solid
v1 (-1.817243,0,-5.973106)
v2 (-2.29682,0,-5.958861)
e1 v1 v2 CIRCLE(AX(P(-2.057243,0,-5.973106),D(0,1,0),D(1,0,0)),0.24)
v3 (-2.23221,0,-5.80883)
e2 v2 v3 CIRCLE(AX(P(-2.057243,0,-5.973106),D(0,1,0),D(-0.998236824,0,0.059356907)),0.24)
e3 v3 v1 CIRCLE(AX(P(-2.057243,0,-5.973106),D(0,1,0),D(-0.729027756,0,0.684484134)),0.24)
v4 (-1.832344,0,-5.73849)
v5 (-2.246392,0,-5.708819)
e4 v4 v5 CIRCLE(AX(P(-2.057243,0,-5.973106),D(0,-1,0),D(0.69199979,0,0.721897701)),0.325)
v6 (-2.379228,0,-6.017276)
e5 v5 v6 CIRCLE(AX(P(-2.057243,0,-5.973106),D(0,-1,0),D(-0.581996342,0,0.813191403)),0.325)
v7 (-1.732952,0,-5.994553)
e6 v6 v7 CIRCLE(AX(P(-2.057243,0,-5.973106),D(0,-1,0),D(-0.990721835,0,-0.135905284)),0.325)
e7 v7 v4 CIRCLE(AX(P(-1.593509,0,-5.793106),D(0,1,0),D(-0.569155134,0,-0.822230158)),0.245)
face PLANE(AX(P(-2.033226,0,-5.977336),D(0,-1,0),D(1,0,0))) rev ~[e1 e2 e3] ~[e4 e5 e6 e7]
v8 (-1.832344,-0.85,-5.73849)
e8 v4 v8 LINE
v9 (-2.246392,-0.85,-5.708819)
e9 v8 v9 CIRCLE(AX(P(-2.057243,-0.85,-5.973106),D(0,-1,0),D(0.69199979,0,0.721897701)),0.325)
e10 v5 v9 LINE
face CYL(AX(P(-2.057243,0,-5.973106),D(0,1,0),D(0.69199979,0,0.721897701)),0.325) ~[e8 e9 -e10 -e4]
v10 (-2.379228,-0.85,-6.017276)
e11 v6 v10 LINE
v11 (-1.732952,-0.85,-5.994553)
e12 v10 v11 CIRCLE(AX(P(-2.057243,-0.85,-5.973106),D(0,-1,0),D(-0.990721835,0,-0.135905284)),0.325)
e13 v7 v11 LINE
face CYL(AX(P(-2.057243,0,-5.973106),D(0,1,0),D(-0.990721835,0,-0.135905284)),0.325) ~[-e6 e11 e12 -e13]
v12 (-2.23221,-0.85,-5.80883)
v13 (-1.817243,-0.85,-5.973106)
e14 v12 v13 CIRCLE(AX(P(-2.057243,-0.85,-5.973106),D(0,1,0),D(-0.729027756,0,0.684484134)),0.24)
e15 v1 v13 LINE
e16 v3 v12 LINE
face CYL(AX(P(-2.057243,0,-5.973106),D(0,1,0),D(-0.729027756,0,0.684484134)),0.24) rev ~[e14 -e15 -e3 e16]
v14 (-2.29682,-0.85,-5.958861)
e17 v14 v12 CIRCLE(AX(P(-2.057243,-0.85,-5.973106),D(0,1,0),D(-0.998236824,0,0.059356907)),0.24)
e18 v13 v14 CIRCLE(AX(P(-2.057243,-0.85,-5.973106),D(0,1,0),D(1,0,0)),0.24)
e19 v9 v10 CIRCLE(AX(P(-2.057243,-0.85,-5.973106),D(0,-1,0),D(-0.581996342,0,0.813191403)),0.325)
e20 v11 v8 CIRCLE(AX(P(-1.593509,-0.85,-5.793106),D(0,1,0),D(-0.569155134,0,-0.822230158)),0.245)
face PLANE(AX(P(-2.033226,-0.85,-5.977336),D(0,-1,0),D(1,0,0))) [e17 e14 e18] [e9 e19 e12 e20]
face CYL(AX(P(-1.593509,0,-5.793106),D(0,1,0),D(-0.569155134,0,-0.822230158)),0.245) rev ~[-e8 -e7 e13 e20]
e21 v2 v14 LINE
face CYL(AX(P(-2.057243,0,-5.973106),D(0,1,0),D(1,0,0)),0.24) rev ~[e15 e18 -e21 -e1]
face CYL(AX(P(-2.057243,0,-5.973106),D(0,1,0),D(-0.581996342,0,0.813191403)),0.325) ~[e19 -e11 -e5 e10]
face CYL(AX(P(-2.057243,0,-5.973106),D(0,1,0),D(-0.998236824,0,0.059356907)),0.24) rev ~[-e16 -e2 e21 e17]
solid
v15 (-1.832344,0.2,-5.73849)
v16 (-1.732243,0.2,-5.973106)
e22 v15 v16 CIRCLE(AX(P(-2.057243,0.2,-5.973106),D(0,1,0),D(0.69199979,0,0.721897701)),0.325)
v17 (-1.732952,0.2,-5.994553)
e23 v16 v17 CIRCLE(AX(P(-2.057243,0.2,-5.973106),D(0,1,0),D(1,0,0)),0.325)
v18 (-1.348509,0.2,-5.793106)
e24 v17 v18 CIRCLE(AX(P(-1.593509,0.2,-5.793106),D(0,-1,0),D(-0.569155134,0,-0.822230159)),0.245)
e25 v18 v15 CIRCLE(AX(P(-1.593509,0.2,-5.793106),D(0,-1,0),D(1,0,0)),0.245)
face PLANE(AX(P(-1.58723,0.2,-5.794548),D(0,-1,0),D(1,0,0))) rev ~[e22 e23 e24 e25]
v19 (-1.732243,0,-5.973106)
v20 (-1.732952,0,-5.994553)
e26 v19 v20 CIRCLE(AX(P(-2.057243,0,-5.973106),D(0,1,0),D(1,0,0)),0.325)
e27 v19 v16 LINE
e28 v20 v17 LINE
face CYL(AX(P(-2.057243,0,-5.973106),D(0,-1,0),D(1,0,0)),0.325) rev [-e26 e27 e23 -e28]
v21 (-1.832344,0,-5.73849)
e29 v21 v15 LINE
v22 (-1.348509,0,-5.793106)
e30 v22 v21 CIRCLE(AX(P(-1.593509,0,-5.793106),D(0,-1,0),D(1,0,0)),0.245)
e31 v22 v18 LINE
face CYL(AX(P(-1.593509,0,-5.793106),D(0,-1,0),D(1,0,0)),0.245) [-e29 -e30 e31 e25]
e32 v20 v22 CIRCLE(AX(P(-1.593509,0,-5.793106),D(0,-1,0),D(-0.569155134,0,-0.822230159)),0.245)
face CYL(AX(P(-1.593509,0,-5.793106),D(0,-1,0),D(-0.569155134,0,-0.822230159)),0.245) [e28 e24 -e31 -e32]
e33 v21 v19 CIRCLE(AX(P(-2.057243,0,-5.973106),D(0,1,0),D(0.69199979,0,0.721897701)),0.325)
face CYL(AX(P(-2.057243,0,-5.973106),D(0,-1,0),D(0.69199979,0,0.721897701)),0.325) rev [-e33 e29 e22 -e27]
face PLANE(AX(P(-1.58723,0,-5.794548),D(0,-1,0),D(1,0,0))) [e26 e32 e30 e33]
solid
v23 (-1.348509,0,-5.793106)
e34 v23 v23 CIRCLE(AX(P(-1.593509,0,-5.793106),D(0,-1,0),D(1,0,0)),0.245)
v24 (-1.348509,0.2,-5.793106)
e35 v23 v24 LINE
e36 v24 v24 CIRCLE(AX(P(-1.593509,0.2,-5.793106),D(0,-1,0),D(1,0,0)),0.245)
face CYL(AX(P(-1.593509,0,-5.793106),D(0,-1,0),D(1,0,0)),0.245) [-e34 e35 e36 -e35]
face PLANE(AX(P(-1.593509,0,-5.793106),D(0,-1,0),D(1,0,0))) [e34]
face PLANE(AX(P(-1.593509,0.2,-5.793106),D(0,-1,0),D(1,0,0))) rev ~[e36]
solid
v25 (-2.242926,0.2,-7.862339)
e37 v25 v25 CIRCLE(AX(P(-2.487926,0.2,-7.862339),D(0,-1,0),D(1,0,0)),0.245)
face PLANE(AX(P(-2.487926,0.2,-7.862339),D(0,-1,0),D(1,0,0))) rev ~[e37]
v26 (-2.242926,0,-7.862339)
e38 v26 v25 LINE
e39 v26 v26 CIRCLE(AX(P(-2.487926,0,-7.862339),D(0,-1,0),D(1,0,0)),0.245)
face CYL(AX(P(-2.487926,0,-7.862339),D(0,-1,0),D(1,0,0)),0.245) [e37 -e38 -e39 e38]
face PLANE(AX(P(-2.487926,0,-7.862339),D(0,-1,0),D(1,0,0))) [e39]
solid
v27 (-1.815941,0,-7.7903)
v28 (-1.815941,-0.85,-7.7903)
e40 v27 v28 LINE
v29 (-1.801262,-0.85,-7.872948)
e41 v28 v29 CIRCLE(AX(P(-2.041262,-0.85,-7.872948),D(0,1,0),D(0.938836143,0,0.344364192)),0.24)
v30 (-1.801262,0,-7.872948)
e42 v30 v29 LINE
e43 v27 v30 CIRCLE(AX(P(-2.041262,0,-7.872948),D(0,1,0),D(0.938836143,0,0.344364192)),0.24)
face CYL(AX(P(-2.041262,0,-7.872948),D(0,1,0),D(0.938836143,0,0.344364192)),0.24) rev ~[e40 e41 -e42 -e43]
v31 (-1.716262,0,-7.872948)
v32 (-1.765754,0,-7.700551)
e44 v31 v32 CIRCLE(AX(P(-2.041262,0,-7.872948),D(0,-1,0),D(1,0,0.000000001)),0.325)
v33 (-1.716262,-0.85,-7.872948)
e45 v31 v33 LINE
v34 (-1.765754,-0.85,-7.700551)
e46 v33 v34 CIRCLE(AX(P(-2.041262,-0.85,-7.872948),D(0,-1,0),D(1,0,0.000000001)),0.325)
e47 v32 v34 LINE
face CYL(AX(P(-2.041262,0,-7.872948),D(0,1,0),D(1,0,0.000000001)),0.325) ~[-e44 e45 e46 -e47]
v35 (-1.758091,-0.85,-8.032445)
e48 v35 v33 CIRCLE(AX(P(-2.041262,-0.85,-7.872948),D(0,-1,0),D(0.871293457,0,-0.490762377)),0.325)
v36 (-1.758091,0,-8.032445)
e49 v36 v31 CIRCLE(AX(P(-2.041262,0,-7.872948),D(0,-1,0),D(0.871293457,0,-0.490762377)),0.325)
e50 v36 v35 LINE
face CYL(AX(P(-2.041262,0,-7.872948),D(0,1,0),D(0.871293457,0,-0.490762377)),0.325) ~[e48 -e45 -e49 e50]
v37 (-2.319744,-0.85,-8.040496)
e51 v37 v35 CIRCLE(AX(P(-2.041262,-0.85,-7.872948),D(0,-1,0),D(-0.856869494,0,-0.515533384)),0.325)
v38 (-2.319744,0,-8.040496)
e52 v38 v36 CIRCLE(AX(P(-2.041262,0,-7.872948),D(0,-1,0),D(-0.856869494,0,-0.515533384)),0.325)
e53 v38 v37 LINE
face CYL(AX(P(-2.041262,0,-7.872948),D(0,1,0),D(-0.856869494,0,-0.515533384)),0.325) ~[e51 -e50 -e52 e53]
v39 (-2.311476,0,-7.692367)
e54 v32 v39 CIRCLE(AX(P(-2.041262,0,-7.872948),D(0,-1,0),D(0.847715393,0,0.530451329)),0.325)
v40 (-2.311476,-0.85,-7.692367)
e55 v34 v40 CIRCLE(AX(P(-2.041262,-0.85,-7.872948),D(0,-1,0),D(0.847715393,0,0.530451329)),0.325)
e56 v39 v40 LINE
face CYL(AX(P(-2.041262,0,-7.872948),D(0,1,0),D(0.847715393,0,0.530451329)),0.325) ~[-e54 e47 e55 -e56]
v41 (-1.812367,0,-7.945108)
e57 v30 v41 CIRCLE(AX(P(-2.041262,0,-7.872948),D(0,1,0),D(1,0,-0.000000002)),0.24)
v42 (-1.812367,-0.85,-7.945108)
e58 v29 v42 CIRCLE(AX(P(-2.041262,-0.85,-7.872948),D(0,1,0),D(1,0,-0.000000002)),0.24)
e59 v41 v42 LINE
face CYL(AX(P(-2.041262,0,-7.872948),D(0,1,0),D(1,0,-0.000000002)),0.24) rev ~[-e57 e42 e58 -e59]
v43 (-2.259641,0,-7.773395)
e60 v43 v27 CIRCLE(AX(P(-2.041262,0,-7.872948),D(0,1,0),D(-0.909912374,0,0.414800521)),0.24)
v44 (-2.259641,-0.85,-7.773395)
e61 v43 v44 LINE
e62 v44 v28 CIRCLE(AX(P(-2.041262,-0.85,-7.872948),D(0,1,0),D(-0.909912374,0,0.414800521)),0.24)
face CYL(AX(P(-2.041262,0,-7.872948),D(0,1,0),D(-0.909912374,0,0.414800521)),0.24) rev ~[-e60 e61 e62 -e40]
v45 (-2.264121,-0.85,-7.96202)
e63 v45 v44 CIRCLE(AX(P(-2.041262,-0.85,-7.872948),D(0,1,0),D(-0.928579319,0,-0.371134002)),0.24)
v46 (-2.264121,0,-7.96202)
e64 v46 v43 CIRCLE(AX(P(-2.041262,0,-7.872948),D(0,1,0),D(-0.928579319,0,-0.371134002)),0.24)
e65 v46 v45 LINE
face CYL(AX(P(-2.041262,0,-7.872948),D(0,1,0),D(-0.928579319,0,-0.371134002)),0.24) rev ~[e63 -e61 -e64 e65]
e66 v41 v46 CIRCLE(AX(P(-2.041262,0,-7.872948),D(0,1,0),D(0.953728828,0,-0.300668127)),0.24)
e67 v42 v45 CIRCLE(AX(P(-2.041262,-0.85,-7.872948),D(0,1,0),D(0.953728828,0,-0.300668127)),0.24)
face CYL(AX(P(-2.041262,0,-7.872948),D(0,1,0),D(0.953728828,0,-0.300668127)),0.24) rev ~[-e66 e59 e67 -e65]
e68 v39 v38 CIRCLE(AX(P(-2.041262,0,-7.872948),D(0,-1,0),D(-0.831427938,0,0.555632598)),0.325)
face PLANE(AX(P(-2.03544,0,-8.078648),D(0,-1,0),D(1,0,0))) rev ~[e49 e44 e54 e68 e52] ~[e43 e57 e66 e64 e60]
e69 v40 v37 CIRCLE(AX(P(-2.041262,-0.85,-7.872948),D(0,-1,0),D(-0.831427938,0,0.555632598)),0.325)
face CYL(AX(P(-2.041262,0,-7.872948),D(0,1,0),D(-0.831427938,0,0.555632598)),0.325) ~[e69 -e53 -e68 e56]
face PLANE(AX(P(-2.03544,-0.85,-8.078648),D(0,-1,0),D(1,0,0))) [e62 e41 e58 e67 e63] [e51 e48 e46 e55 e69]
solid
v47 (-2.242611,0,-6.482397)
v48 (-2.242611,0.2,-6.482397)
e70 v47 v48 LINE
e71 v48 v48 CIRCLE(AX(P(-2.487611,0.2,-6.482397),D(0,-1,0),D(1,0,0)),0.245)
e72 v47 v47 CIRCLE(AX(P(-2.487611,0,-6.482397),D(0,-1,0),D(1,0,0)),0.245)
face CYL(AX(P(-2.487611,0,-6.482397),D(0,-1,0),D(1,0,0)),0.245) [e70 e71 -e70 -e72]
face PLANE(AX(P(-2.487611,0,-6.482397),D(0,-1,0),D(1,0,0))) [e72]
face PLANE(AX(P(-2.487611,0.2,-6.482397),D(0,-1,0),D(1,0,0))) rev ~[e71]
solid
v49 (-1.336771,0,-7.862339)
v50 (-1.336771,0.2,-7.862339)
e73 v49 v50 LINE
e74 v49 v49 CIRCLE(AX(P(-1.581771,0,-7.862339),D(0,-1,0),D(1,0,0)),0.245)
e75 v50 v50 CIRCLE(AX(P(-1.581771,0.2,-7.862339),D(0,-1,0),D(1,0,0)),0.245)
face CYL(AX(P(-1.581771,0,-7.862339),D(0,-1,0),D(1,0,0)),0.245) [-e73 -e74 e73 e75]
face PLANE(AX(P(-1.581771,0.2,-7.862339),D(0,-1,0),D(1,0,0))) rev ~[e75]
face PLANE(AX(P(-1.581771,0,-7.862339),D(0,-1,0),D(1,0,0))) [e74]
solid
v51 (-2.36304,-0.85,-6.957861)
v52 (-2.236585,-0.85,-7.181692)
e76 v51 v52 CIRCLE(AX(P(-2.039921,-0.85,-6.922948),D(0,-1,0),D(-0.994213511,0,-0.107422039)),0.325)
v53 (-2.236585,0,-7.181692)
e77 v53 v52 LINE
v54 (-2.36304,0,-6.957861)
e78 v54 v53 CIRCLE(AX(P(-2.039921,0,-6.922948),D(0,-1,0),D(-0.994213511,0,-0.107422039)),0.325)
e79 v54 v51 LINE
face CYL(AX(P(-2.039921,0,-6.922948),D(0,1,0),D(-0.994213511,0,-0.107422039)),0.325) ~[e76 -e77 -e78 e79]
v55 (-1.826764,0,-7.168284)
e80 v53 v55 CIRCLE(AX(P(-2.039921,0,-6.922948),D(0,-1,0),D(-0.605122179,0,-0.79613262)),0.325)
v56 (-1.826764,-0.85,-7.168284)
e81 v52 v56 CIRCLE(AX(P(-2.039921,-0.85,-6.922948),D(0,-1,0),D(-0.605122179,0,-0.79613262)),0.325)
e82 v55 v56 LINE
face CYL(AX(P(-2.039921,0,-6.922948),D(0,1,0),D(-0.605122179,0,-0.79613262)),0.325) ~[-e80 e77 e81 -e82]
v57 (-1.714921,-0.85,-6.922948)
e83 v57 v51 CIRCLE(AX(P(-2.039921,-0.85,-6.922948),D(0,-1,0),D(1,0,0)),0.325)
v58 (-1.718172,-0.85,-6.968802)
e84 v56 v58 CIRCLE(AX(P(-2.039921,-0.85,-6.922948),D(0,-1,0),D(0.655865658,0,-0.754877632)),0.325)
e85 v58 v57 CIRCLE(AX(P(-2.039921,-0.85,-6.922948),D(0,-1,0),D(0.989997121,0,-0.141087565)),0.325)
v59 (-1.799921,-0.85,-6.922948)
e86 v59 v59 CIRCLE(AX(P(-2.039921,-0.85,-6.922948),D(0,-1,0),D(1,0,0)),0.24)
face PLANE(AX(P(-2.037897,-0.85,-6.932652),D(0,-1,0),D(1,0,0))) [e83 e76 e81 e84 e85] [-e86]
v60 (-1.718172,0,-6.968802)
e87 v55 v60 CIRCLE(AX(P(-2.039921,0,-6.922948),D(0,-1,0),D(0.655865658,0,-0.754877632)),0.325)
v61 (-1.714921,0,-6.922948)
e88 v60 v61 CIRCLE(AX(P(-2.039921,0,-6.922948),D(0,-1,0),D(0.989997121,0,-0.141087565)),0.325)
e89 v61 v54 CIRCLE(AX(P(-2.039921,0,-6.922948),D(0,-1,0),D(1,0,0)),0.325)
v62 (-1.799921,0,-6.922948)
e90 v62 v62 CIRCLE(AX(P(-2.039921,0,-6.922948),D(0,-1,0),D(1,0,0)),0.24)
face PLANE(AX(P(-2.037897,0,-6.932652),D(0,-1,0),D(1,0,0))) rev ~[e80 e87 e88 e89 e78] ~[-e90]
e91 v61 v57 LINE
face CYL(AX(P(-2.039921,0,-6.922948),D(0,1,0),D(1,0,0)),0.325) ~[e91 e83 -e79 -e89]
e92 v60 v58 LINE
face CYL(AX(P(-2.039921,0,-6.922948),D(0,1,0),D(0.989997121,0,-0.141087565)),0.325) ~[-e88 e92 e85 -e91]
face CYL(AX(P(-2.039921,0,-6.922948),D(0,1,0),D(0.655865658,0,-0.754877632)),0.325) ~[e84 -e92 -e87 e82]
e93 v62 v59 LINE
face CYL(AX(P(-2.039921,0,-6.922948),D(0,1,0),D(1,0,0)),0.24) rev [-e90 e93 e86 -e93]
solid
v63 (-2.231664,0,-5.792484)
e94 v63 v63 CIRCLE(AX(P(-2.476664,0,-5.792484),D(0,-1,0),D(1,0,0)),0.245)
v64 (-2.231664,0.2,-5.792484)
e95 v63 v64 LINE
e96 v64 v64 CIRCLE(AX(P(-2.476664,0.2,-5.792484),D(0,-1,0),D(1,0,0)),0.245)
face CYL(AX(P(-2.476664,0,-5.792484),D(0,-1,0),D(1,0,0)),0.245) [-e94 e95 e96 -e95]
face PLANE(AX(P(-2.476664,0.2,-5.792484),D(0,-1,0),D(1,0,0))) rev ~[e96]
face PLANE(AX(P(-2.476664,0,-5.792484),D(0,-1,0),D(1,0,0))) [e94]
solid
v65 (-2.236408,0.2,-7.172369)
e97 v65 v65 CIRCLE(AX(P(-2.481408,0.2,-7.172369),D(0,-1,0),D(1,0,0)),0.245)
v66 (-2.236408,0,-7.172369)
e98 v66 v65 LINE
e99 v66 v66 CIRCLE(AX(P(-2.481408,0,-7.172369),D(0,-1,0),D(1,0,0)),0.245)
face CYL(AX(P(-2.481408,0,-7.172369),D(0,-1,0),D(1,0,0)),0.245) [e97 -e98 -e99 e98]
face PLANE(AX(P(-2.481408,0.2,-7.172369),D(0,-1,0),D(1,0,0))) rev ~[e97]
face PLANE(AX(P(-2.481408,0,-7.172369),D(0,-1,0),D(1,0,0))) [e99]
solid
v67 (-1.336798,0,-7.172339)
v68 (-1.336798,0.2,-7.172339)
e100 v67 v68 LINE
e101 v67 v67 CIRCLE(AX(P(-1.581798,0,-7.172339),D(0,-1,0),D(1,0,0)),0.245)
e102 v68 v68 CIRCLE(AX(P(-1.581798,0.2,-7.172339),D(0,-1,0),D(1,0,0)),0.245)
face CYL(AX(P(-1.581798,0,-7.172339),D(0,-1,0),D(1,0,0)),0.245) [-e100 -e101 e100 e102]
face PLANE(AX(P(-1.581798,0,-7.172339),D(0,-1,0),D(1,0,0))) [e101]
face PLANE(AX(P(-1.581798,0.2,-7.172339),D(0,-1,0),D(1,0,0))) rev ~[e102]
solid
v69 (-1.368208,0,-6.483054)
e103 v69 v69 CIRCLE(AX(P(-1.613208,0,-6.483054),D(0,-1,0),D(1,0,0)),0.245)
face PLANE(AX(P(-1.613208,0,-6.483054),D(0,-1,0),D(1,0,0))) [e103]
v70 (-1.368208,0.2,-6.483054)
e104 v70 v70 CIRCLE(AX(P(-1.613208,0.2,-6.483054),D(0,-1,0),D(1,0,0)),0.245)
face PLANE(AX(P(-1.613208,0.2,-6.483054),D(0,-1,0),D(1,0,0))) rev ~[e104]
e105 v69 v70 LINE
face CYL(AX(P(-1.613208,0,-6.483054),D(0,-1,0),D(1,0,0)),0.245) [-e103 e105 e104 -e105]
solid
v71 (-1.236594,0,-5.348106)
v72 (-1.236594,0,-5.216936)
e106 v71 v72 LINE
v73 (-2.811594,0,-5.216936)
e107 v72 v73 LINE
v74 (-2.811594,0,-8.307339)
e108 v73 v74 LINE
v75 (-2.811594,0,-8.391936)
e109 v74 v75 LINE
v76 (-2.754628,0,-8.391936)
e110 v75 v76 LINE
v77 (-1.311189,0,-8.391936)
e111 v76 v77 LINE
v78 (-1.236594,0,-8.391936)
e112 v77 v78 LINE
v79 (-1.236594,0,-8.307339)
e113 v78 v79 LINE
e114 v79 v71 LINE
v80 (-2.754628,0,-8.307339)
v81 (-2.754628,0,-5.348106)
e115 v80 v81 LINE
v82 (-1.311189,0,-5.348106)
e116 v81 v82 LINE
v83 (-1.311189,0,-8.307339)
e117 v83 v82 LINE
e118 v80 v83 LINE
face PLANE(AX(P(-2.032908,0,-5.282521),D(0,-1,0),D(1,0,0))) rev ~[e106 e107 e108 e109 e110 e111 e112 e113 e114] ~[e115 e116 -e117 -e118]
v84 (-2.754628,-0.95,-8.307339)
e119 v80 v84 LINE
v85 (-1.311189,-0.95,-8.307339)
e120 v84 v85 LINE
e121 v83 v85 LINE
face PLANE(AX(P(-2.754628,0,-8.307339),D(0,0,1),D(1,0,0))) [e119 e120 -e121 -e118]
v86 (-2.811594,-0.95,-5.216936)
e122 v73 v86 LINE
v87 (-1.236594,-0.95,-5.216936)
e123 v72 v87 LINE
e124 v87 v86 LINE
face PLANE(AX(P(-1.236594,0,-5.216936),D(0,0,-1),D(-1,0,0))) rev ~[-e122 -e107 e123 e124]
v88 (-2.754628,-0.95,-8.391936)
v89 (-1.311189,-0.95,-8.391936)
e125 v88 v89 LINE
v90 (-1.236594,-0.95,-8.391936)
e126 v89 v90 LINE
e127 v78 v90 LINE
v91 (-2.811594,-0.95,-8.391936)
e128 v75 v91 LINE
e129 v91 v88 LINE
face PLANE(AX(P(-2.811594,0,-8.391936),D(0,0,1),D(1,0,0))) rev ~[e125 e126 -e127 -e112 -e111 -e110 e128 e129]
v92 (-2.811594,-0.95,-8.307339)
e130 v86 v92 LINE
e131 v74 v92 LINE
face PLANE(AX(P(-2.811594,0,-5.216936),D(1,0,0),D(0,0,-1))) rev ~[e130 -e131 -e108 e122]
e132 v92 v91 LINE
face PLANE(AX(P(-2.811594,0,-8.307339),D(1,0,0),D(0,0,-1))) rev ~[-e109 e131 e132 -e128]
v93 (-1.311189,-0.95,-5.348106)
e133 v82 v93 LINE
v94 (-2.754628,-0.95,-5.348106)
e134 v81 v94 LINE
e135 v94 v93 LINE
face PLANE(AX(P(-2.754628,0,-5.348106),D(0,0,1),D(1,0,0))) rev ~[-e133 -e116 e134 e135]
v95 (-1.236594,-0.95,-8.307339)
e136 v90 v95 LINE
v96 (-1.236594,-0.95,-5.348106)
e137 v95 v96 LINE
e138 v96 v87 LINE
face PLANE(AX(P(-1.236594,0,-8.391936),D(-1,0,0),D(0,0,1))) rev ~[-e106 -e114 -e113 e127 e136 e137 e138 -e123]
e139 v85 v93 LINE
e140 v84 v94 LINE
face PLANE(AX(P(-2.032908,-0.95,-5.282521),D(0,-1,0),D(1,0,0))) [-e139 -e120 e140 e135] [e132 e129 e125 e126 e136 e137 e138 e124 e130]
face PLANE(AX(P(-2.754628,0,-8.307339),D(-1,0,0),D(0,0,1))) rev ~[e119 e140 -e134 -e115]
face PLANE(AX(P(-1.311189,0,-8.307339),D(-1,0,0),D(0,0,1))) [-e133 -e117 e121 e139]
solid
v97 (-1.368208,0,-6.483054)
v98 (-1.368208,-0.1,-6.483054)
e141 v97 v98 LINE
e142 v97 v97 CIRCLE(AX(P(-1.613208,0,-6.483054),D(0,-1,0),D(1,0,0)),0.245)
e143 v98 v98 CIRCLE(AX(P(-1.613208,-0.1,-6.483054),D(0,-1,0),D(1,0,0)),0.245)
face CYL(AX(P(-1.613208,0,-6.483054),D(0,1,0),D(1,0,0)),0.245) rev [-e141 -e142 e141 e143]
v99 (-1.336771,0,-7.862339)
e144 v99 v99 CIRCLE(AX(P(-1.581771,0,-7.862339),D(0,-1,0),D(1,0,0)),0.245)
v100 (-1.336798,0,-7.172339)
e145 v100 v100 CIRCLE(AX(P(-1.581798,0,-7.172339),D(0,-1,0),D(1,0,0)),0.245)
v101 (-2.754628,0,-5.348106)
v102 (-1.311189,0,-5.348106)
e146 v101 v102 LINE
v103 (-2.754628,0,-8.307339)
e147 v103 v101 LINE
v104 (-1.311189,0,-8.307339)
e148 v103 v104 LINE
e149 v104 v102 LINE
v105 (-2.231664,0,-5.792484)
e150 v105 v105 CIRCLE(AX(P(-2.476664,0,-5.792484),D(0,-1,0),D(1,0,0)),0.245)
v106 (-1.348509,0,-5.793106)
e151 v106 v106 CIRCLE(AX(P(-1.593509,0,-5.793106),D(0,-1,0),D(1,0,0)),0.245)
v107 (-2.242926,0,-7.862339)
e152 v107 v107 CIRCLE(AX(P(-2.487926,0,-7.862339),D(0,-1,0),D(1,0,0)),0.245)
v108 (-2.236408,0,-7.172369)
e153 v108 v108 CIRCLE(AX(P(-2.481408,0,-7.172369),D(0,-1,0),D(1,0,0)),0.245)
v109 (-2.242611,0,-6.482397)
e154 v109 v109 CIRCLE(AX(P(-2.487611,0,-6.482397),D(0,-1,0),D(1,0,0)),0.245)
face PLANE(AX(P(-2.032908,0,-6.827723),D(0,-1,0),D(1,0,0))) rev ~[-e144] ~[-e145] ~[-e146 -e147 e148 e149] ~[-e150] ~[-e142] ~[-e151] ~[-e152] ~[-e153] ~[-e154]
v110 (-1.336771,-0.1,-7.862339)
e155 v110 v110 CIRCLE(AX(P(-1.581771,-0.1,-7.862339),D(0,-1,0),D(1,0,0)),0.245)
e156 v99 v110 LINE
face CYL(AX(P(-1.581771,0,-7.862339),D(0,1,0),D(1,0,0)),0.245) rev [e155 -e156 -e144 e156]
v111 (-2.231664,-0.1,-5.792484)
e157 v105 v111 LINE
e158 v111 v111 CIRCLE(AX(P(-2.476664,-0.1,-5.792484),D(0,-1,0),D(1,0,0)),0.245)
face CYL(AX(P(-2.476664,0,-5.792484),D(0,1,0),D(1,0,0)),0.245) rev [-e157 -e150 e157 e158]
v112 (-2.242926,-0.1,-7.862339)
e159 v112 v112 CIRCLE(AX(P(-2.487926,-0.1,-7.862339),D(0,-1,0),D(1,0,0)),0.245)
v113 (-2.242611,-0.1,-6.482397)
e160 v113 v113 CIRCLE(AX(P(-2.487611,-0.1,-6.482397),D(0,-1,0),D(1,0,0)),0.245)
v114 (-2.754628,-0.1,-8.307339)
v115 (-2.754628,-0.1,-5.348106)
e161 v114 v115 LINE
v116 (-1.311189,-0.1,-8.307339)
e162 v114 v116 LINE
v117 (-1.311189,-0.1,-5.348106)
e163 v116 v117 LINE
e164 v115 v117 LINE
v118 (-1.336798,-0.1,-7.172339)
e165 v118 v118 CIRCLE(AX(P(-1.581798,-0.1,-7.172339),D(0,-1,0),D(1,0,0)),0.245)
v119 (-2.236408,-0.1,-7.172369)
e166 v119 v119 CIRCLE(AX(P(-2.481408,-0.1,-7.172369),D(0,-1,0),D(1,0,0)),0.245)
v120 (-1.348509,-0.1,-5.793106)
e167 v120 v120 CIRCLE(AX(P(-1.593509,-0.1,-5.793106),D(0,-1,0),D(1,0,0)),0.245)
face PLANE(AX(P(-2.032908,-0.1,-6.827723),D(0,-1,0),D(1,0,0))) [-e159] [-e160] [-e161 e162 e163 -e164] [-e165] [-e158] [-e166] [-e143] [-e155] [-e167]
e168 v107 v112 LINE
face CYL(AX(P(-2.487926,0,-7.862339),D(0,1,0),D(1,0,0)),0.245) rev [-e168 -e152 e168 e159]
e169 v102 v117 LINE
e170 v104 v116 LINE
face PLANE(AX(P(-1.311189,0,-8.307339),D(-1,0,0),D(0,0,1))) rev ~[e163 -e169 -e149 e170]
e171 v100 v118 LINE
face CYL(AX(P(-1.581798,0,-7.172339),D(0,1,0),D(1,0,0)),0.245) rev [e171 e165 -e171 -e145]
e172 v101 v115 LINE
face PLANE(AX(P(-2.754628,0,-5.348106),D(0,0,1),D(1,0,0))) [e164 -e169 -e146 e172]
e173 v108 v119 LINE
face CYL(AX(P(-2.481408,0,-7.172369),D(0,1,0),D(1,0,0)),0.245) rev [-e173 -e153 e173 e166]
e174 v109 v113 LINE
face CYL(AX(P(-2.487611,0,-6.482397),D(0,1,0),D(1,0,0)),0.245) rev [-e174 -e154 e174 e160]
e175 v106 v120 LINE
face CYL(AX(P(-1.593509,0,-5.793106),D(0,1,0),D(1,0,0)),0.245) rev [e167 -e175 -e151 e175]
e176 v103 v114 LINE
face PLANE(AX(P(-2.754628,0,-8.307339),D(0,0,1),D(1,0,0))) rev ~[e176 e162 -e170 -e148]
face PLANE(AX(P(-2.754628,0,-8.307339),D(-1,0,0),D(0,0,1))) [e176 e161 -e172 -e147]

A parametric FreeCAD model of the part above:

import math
import FreeCAD as App
import Part
import Sketcher
Q = App.Units.Quantity


def add_polygon(sketch, points):
    """Adds a closed chain of lines whose ends are joined by coincident constraints."""
    first, n = sketch.GeometryCount, len(points)
    for a, b in zip(points, points[1:] + points[:1]):
        sketch.addGeometry(Part.LineSegment(App.Vector(*a, 0), App.Vector(*b, 0)), False)
    for i in range(n):
        sketch.addConstraint(Sketcher.Constraint("Coincident", first + i, 2, first + (i + 1) % n, 1))

doc = App.newDocument("Part")
body = doc.addObject("PartDesign::Body", "Body")

sketch1 = body.newObject("Sketcher::SketchObject", "Sketch")
sketch1.AttachmentSupport = (doc.getObject("XZ_Plane"), [""])
sketch1.MapMode = "FlatFace"
add_polygon(sketch1, [(-2.81, -5.22), (-2.81, -8.31), (-2.81, -8.39), (-2.75, -8.39), (-1.31, -8.39), (-1.24, -8.39), (-1.24, -8.31), (-1.24, -5.35), (-1.24, -5.22)])
add_polygon(sketch1, [(-1.31, -8.31), (-2.75, -8.31), (-2.75, -5.35), (-1.31, -5.35)])
sketch1.addConstraint(Sketcher.Constraint("Vertical", 0))
sketch1.addConstraint(Sketcher.Constraint("Vertical", 1))
sketch1.addConstraint(Sketcher.Constraint("Horizontal", 2))
sketch1.addConstraint(Sketcher.Constraint("Horizontal", 3))
sketch1.addConstraint(Sketcher.Constraint("Horizontal", 4))
sketch1.addConstraint(Sketcher.Constraint("Vertical", 5))
sketch1.addConstraint(Sketcher.Constraint("Vertical", 6))
sketch1.addConstraint(Sketcher.Constraint("Vertical", 7))
sketch1.addConstraint(Sketcher.Constraint("Horizontal", 8))
sketch1.addConstraint(Sketcher.Constraint("Horizontal", 9))
sketch1.addConstraint(Sketcher.Constraint("Vertical", 10))
sketch1.addConstraint(Sketcher.Constraint("Horizontal", 11))
sketch1.addConstraint(Sketcher.Constraint("Vertical", 12))
sketch1.addConstraint(Sketcher.Constraint("Horizontal", 0, 2, 5, 2))
sketch1.addConstraint(Sketcher.Constraint("Horizontal", 5, 2, 9, 2))
sketch1.addConstraint(Sketcher.Constraint("Horizontal", 6, 2, 10, 2))
sketch1.addConstraint(Sketcher.Constraint("Vertical", 2, 2, 9, 2))
sketch1.addConstraint(Sketcher.Constraint("Vertical", 3, 2, 11, 2))
sketch1.addConstraint(Sketcher.Constraint("DistanceX", 8, 2, 8, 1, Q("1.575 mm")))
sketch1.addConstraint(Sketcher.Constraint("DistanceY", 4, 2, 7, 2, Q("3.175 mm")))
sketch1.addConstraint(Sketcher.Constraint("DistanceX", 3, 1, 3, 2, Q("1.443439 mm")))
sketch1.addConstraint(Sketcher.Constraint("DistanceY", 7, 1, 7, 2, Q("0.131171 mm")))
sketch1.addConstraint(Sketcher.Constraint("DistanceX", 2, 1, 2, 2, Q("0.056966 mm")))
sketch1.addConstraint(Sketcher.Constraint("DistanceY", 0, 2, 0, 1, Q("3.090403 mm")))
sketch1.addConstraint(Sketcher.Constraint("DistanceY", 0, 2, -1, 1, Q("8.307339 mm")))
sketch1.addConstraint(Sketcher.Constraint("DistanceX", 3, 2, -1, 1, Q("1.311189 mm")))
pad1 = body.newObject("PartDesign::Pad", "Pad")
pad1.Profile = sketch1
pad1.Length = 0.95
body2 = doc.addObject("PartDesign::Body", "Body001")

sketch2 = body2.newObject("Sketcher::SketchObject", "Sketch001")
sketch2.AttachmentSupport = (doc.getObject("XZ_Plane001"), [""])
sketch2.MapMode = "FlatFace"
add_polygon(sketch2, [(-2.75, -5.35), (-2.75, -8.31), (-1.31, -8.31), (-1.31, -5.35)])
sketch2.addGeometry(Part.Circle(App.Vector(-2.49, -7.86, 0), App.Vector(0, 0, 1), 0.24), False)
sketch2.addGeometry(Part.Circle(App.Vector(-2.48, -7.17, 0), App.Vector(0, 0, 1), 0.24), False)
sketch2.addGeometry(Part.Circle(App.Vector(-1.58, -7.86, 0), App.Vector(0, 0, 1), 0.24), False)
sketch2.addGeometry(Part.Circle(App.Vector(-1.58, -7.17, 0), App.Vector(0, 0, 1), 0.24), False)
sketch2.addGeometry(Part.Circle(App.Vector(-2.49, -6.48, 0), App.Vector(0, 0, 1), 0.24), False)
sketch2.addGeometry(Part.Circle(App.Vector(-2.48, -5.79, 0), App.Vector(0, 0, 1), 0.24), False)
sketch2.addGeometry(Part.Circle(App.Vector(-1.61, -6.48, 0), App.Vector(0, 0, 1), 0.24), False)
sketch2.addGeometry(Part.Circle(App.Vector(-1.59, -5.79, 0), App.Vector(0, 0, 1), 0.24), False)
sketch2.addConstraint(Sketcher.Constraint("Vertical", 0))
sketch2.addConstraint(Sketcher.Constraint("Horizontal", 1))
sketch2.addConstraint(Sketcher.Constraint("Vertical", 2))
sketch2.addConstraint(Sketcher.Constraint("Horizontal", 3))
sketch2.addConstraint(Sketcher.Constraint("Equal", 4, 5))
sketch2.addConstraint(Sketcher.Constraint("Equal", 5, 6))
sketch2.addConstraint(Sketcher.Constraint("Equal", 6, 7))
sketch2.addConstraint(Sketcher.Constraint("Equal", 7, 8))
sketch2.addConstraint(Sketcher.Constraint("Equal", 8, 9))
sketch2.addConstraint(Sketcher.Constraint("Equal", 9, 10))
sketch2.addConstraint(Sketcher.Constraint("Equal", 10, 11))
sketch2.addConstraint(Sketcher.Constraint("Horizontal", 4, 3, 6, 3))
sketch2.addConstraint(Sketcher.Constraint("Diameter", 4, Q("0.49 mm")))
sketch2.addConstraint(Sketcher.Constraint("DistanceY", 6, 3, 7, 3, Q("0.69 mm")))
sketch2.addConstraint(Sketcher.Constraint("DistanceY", 0, 2, 4, 3, Q("0.445 mm")))
sketch2.addConstraint(Sketcher.Constraint("DistanceY", 11, 3, 2, 2, Q("0.445 mm")))
sketch2.addConstraint(Sketcher.Constraint("DistanceX", 1, 1, 1, 2, Q("1.443439 mm")))
sketch2.addConstraint(Sketcher.Constraint("DistanceX", 7, 3, -1, 1, Q("1.581798 mm")))
sketch2.addConstraint(Sketcher.Constraint("DistanceX", 5, 3, 10, 3, Q("0.8682 mm")))
sketch2.addConstraint(Sketcher.Constraint("DistanceX", 10, 3, 11, 3, Q("0.019699 mm")))
sketch2.addConstraint(Sketcher.Constraint("DistanceX", 0, 2, 4, 3, Q("0.266702 mm")))
sketch2.addConstraint(Sketcher.Constraint("DistanceY", 0, 2, 0, 1, Q("2.959232 mm")))
sketch2.addConstraint(Sketcher.Constraint("DistanceY", 4, 3, -1, 1, Q("7.862339 mm")))
sketch2.addConstraint(Sketcher.Constraint("DistanceX", 5, 3, -1, 1, Q("2.481408 mm")))
sketch2.addConstraint(Sketcher.Constraint("DistanceY", 5, 3, -1, 1, Q("7.172369 mm")))
sketch2.addConstraint(Sketcher.Constraint("DistanceX", 6, 3, -1, 1, Q("1.581771 mm")))
sketch2.addConstraint(Sketcher.Constraint("DistanceX", 8, 3, -1, 1, Q("2.487611 mm")))
sketch2.addConstraint(Sketcher.Constraint("DistanceX", 1, 2, -1, 1, Q("1.311189 mm")))
sketch2.addConstraint(Sketcher.Constraint("DistanceY", 7, 3, 8, 3, Q("0.689941 mm")))
sketch2.addConstraint(Sketcher.Constraint("DistanceX", 4, 3, 9, 3, Q("0.011262 mm")))
sketch2.addConstraint(Sketcher.Constraint("DistanceY", 10, 3, 9, 3, Q("0.69057 mm")))
sketch2.addConstraint(Sketcher.Constraint("DistanceY", 9, 3, -1, 1, Q("5.792484 mm")))
pad2 = body2.newObject("PartDesign::Pad", "Pad001")
pad2.Profile = sketch2
pad2.Length = 0.1
body3 = doc.addObject("PartDesign::Body", "Body002")

sketch3 = body3.newObject("Sketcher::SketchObject", "Sketch002")
sketch3.AttachmentSupport = (doc.getObject("XZ_Plane002"), [""])
sketch3.MapMode = "FlatFace"
sketch3.addGeometry(Part.Circle(App.Vector(-1.58, -7.86, 0), App.Vector(0, 0, 1), 0.24), False)
sketch3.addConstraint(Sketcher.Constraint("Diameter", 0, Q("0.49 mm")))
sketch3.addConstraint(Sketcher.Constraint("DistanceX", 0, 3, -1, 1, Q("1.581771 mm")))
sketch3.addConstraint(Sketcher.Constraint("DistanceY", 0, 3, -1, 1, Q("7.862339 mm")))
pad3 = body3.newObject("PartDesign::Pad", "Pad002")
pad3.Profile = sketch3
pad3.Length = 0.2
pad3.Reversed = True
body4 = doc.addObject("PartDesign::Body", "Body003")

sketch4 = body4.newObject("Sketcher::SketchObject", "Sketch003")
sketch4.AttachmentSupport = (doc.getObject("XZ_Plane003"), [""])
sketch4.MapMode = "FlatFace"
sketch4.addGeometry(Part.Circle(App.Vector(-2.49, -7.86, 0), App.Vector(0, 0, 1), 0.24), False)
sketch4.addConstraint(Sketcher.Constraint("Diameter", 0, Q("0.49 mm")))
sketch4.addConstraint(Sketcher.Constraint("DistanceY", 0, 3, -1, 1, Q("7.862339 mm")))
sketch4.addConstraint(Sketcher.Constraint("DistanceX", 0, 3, -1, 1, Q("2.487926 mm")))
pad4 = body4.newObject("PartDesign::Pad", "Pad003")
pad4.Profile = sketch4
pad4.Length = 0.2
pad4.Reversed = True
body5 = doc.addObject("PartDesign::Body", "Body004")

sketch5 = body5.newObject("Sketcher::SketchObject", "Sketch004")
sketch5.AttachmentSupport = (doc.getObject("XZ_Plane004"), [""])
sketch5.MapMode = "FlatFace"
sketch5.addGeometry(Part.Circle(App.Vector(-2.48, -7.17, 0), App.Vector(0, 0, 1), 0.24), False)
sketch5.addConstraint(Sketcher.Constraint("Diameter", 0, Q("0.49 mm")))
sketch5.addConstraint(Sketcher.Constraint("DistanceX", 0, 3, -1, 1, Q("2.481408 mm")))
sketch5.addConstraint(Sketcher.Constraint("DistanceY", 0, 3, -1, 1, Q("7.172369 mm")))
pad5 = body5.newObject("PartDesign::Pad", "Pad004")
pad5.Profile = sketch5
pad5.Length = 0.2
pad5.Reversed = True
body6 = doc.addObject("PartDesign::Body", "Body005")

sketch6 = body6.newObject("Sketcher::SketchObject", "Sketch005")
sketch6.AttachmentSupport = (doc.getObject("XZ_Plane005"), [""])
sketch6.MapMode = "FlatFace"
sketch6.addGeometry(Part.Circle(App.Vector(-1.58, -7.17, 0), App.Vector(0, 0, 1), 0.24), False)
sketch6.addConstraint(Sketcher.Constraint("Diameter", 0, Q("0.49 mm")))
sketch6.addConstraint(Sketcher.Constraint("DistanceX", 0, 3, -1, 1, Q("1.581798 mm")))
sketch6.addConstraint(Sketcher.Constraint("DistanceY", 0, 3, -1, 1, Q("7.172339 mm")))
pad6 = body6.newObject("PartDesign::Pad", "Pad005")
pad6.Profile = sketch6
pad6.Length = 0.2
pad6.Reversed = True
body7 = doc.addObject("PartDesign::Body", "Body006")

sketch7 = body7.newObject("Sketcher::SketchObject", "Sketch006")
sketch7.AttachmentSupport = (doc.getObject("XZ_Plane006"), [""])
sketch7.MapMode = "FlatFace"
sketch7.addGeometry(Part.Circle(App.Vector(-1.61, -6.48, 0), App.Vector(0, 0, 1), 0.24), False)
sketch7.addConstraint(Sketcher.Constraint("Diameter", 0, Q("0.49 mm")))
sketch7.addConstraint(Sketcher.Constraint("DistanceX", 0, 3, -1, 1, Q("1.613208 mm")))
sketch7.addConstraint(Sketcher.Constraint("DistanceY", 0, 3, -1, 1, Q("6.483054 mm")))
pad7 = body7.newObject("PartDesign::Pad", "Pad006")
pad7.Profile = sketch7
pad7.Length = 0.2
pad7.Reversed = True
body8 = doc.addObject("PartDesign::Body", "Body007")

sketch8 = body8.newObject("Sketcher::SketchObject", "Sketch007")
sketch8.AttachmentSupport = (doc.getObject("XZ_Plane007"), [""])
sketch8.MapMode = "FlatFace"
sketch8.addGeometry(Part.Circle(App.Vector(-2.49, -6.48, 0), App.Vector(0, 0, 1), 0.24), False)
sketch8.addConstraint(Sketcher.Constraint("Diameter", 0, Q("0.49 mm")))
sketch8.addConstraint(Sketcher.Constraint("DistanceX", 0, 3, -1, 1, Q("2.487611 mm")))
sketch8.addConstraint(Sketcher.Constraint("DistanceY", 0, 3, -1, 1, Q("6.482397 mm")))
pad8 = body8.newObject("PartDesign::Pad", "Pad007")
pad8.Profile = sketch8
pad8.Length = 0.2
pad8.Reversed = True
body9 = doc.addObject("PartDesign::Body", "Body008")

sketch9 = body9.newObject("Sketcher::SketchObject", "Sketch008")
sketch9.AttachmentSupport = (doc.getObject("XZ_Plane008"), [""])
sketch9.MapMode = "FlatFace"
sketch9.addGeometry(Part.Circle(App.Vector(-2.48, -5.79, 0), App.Vector(0, 0, 1), 0.24), False)
sketch9.addConstraint(Sketcher.Constraint("Diameter", 0, Q("0.49 mm")))
sketch9.addConstraint(Sketcher.Constraint("DistanceX", 0, 3, -1, 1, Q("2.476664 mm")))
sketch9.addConstraint(Sketcher.Constraint("DistanceY", 0, 3, -1, 1, Q("5.792484 mm")))
pad9 = body9.newObject("PartDesign::Pad", "Pad008")
pad9.Profile = sketch9
pad9.Length = 0.2
pad9.Reversed = True
body10 = doc.addObject("PartDesign::Body", "Body009")

sketch10 = body10.newObject("Sketcher::SketchObject", "Sketch009")
sketch10.AttachmentSupport = (doc.getObject("XZ_Plane009"), [""])
sketch10.MapMode = "FlatFace"
sketch10.addGeometry(Part.Circle(App.Vector(-1.59, -5.79, 0), App.Vector(0, 0, 1), 0.24), False)
sketch10.addConstraint(Sketcher.Constraint("Diameter", 0, Q("0.49 mm")))
sketch10.addConstraint(Sketcher.Constraint("DistanceX", 0, 3, -1, 1, Q("1.593509 mm")))
sketch10.addConstraint(Sketcher.Constraint("DistanceY", 0, 3, -1, 1, Q("5.793106 mm")))
pad10 = body10.newObject("PartDesign::Pad", "Pad009")
pad10.Profile = sketch10
pad10.Length = 0.2
pad10.Reversed = True
body11 = doc.addObject("PartDesign::Body", "Body010")

sketch11 = body11.newObject("Sketcher::SketchObject", "Sketch010")
sketch11.AttachmentSupport = (doc.getObject("XZ_Plane010"), [""])
sketch11.MapMode = "FlatFace"
sketch11.addGeometry(Part.ArcOfCircle(Part.Circle(App.Vector(-2.057, -5.973, 0), App.Vector(0, 0, 1), 0.325), math.radians(0), math.radians(46)), False)
sketch11.addGeometry(Part.ArcOfCircle(Part.Circle(App.Vector(-2.057, -5.973, 0), App.Vector(0, 0, 1), 0.325), math.radians(-3.78), math.radians(0)), False)
sketch11.addGeometry(Part.ArcOfCircle(Part.Circle(App.Vector(-1.594, -5.793, 0), App.Vector(0, 0, 1), 0.245), math.radians(-125), math.radians(0)), False)
sketch11.addGeometry(Part.ArcOfCircle(Part.Circle(App.Vector(-1.594, -5.793, 0), App.Vector(0, 0, 1), 0.245), math.radians(0), math.radians(167)), False)
sketch11.addConstraint(Sketcher.Constraint("Tangent", 0, 1, 1, 2))
sketch11.addConstraint(Sketcher.Constraint("Coincident", 1, 1, 2, 1))
sketch11.addConstraint(Sketcher.Constraint("Tangent", 2, 2, 3, 1))
sketch11.addConstraint(Sketcher.Constraint("Coincident", 3, 2, 0, 2))
sketch11.addConstraint(Sketcher.Constraint("Equal", 0, 1))
sketch11.addConstraint(Sketcher.Constraint("Equal", 2, 3))
sketch11.addConstraint(Sketcher.Constraint("Horizontal", 1, 3, 0, 1))
sketch11.addConstraint(Sketcher.Constraint("Horizontal", 3, 3, 2, 2))
sketch11.addConstraint(Sketcher.Constraint("Radius", 0, Q("0.325 mm")))
sketch11.addConstraint(Sketcher.Constraint("Radius", 2, Q("0.245 mm")))
sketch11.addConstraint(Sketcher.Constraint("DistanceY", 1, 3, 2, 3, Q("0.18 mm")))
sketch11.addConstraint(Sketcher.Constraint("DistanceX", 3, 2, 0, 1, Q("0.1001 mm")))
sketch11.addConstraint(Sketcher.Constraint("DistanceX", 2, 3, -1, 1, Q("1.593509 mm")))
sketch11.addConstraint(Sketcher.Constraint("DistanceY", 3, 2, -1, 1, Q("5.73849 mm")))
pad11 = body11.newObject("PartDesign::Pad", "Pad010")
pad11.Profile = sketch11
pad11.Length = 0.2
pad11.Reversed = True
body12 = doc.addObject("PartDesign::Body", "Body011")

sketch12 = body12.newObject("Sketcher::SketchObject", "Sketch011")
sketch12.AttachmentSupport = (doc.getObject("XZ_Plane011"), [""])
sketch12.MapMode = "FlatFace"
sketch12.addGeometry(Part.ArcOfCircle(Part.Circle(App.Vector(-2.04, -7.87, 0), App.Vector(0, 0, 1), 0.33), math.radians(-149), math.radians(-29)), False)
sketch12.addGeometry(Part.ArcOfCircle(Part.Circle(App.Vector(-2.04, -7.87, 0), App.Vector(0, 0, 1), 0.32), math.radians(-29), math.radians(0)), False)
sketch12.addGeometry(Part.ArcOfCircle(Part.Circle(App.Vector(-2.04, -7.87, 0), App.Vector(0, 0, 1), 0.33), math.radians(0), math.radians(32)), False)
sketch12.addGeometry(Part.ArcOfCircle(Part.Circle(App.Vector(-2.04, -7.87, 0), App.Vector(0, 0, 1), 0.33), math.radians(32), math.radians(146)), False)
sketch12.addGeometry(Part.ArcOfCircle(Part.Circle(App.Vector(-2.04, -7.87, 0), App.Vector(0, 0, 1), 0.33), math.radians(146), math.radians(211)), False)
sketch12.addGeometry(Part.ArcOfCircle(Part.Circle(App.Vector(-2.04, -7.87, 0), App.Vector(0, 0, 1), 0.24), math.radians(-158), math.radians(-17)), False)
sketch12.addGeometry(Part.ArcOfCircle(Part.Circle(App.Vector(-2.04, -7.87, 0), App.Vector(0, 0, 1), 0.24), math.radians(155), math.radians(202)), False)
sketch12.addGeometry(Part.ArcOfCircle(Part.Circle(App.Vector(-2.04, -7.87, 0), App.Vector(0, 0, 1), 0.24), math.radians(20), math.radians(155)), False)
sketch12.addGeometry(Part.ArcOfCircle(Part.Circle(App.Vector(-2.04, -7.87, 0), App.Vector(0, 0, 1), 0.24), math.radians(0), math.radians(20)), False)
sketch12.addGeometry(Part.ArcOfCircle(Part.Circle(App.Vector(-2.04, -7.87, 0), App.Vector(0, 0, 1), 0.24), math.radians(-17.5), math.radians(0)), False)
sketch12.addConstraint(Sketcher.Constraint("Tangent", 0, 2, 1, 1))
sketch12.addConstraint(Sketcher.Constraint("Tangent", 1, 2, 2, 1))
sketch12.addConstraint(Sketcher.Constraint("Tangent", 2, 2, 3, 1))
sketch12.addConstraint(Sketcher.Constraint("Tangent", 3, 2, 4, 1))
sketch12.addConstraint(Sketcher.Constraint("Tangent", 4, 2, 0, 1))
sketch12.addConstraint(Sketcher.Constraint("Tangent", 5, 1, 6, 2))
sketch12.addConstraint(Sketcher.Constraint("Tangent", 6, 1, 7, 2))
sketch12.addConstraint(Sketcher.Constraint("Tangent", 7, 1, 8, 2))
sketch12.addConstraint(Sketcher.Constraint("Tangent", 8, 1, 9, 2))
sketch12.addConstraint(Sketcher.Constraint("Tangent", 9, 1, 5, 2))
sketch12.addConstraint(Sketcher.Constraint("Coincident", 2, 3, 0, 3))
sketch12.addConstraint(Sketcher.Constraint("Coincident", 5, 3, 0, 3))
sketch12.addConstraint(Sketcher.Constraint("Coincident", 7, 3, 0, 3))
sketch12.addConstraint(Sketcher.Constraint("Horizontal", 9, 3, 1, 2))
sketch12.addConstraint(Sketcher.Constraint("Horizontal", 1, 2, 8, 1))
sketch12.addConstraint(Sketcher.Constraint("Radius", 5, Q("0.24 mm")))
sketch12.addConstraint(Sketcher.Constraint("Radius", 0, Q("0.325 mm")))
sketch12.addConstraint(Sketcher.Constraint("DistanceY", 7, 1, -1, 1, Q("7.7903 mm")))
sketch12.addConstraint(Sketcher.Constraint("DistanceX", 0, 3, -1, 1, Q("2.041262 mm")))
sketch12.addConstraint(Sketcher.Constraint("DistanceX", 0, 2, -1, 1, Q("1.758091 mm")))
sketch12.addConstraint(Sketcher.Constraint("DistanceY", 2, 2, -1, 1, Q("7.700551 mm")))
sketch12.addConstraint(Sketcher.Constraint("DistanceX", 5, 1, -1, 1, Q("2.264121 mm")))
sketch12.addConstraint(Sketcher.Constraint("DistanceY", 5, 1, -1, 1, Q("7.96202 mm")))
sketch12.addConstraint(Sketcher.Constraint("DistanceX", 6, 1, -1, 1, Q("2.259641 mm")))
sketch12.addConstraint(Sketcher.Constraint("DistanceY", 9, 3, 3, 2, Q("0.180581 mm")))
sketch12.addConstraint(Sketcher.Constraint("DistanceY", 4, 2, 9, 3, Q("0.167548 mm")))
sketch12.addConstraint(Sketcher.Constraint("DistanceY", 9, 1, 8, 1, Q("0.07216 mm")))
pad12 = body12.newObject("PartDesign::Pad", "Pad011")
pad12.Profile = sketch12
pad12.Length = 0.85
body13 = doc.addObject("PartDesign::Body", "Body012")

sketch13 = body13.newObject("Sketcher::SketchObject", "Sketch012")
sketch13.AttachmentSupport = (doc.getObject("XZ_Plane012"), [""])
sketch13.MapMode = "FlatFace"
sketch13.addGeometry(Part.ArcOfCircle(Part.Circle(App.Vector(-2.04, -6.923, 0), App.Vector(0, 0, 1), 0.325), math.radians(-8.11), math.radians(0)), False)
sketch13.addGeometry(Part.ArcOfCircle(Part.Circle(App.Vector(-2.04, -6.923, 0), App.Vector(0, 0, 1), 0.325), math.radians(0), math.radians(186)), False)
sketch13.addGeometry(Part.ArcOfCircle(Part.Circle(App.Vector(-2.04, -6.923, 0), App.Vector(0, 0, 1), 0.325), math.radians(-174), math.radians(-127)), False)
sketch13.addGeometry(Part.ArcOfCircle(Part.Circle(App.Vector(-2.04, -6.923, 0), App.Vector(0, 0, 1), 0.325), math.radians(-127), math.radians(-49)), False)
sketch13.addGeometry(Part.ArcOfCircle(Part.Circle(App.Vector(-2.04, -6.923, 0), App.Vector(0, 0, 1), 0.325), math.radians(-49), math.radians(-8)), False)
sketch13.addGeometry(Part.Circle(App.Vector(-2.04, -6.923, 0), App.Vector(0, 0, 1), 0.24), False)
sketch13.addConstraint(Sketcher.Constraint("Tangent", 0, 2, 1, 1))
sketch13.addConstraint(Sketcher.Constraint("Tangent", 1, 2, 2, 1))
sketch13.addConstraint(Sketcher.Constraint("Tangent", 2, 2, 3, 1))
sketch13.addConstraint(Sketcher.Constraint("Tangent", 3, 2, 4, 1))
sketch13.addConstraint(Sketcher.Constraint("Tangent", 4, 2, 0, 1))
sketch13.addConstraint(Sketcher.Constraint("Coincident", 2, 3, 0, 3))
sketch13.addConstraint(Sketcher.Constraint("Coincident", 5, 3, 0, 3))
sketch13.addConstraint(Sketcher.Constraint("Horizontal", 5, 3, 0, 2))
sketch13.addConstraint(Sketcher.Constraint("Diameter", 5, Q("0.48 mm")))
sketch13.addConstraint(Sketcher.Constraint("Radius", 0, Q("0.325 mm")))
sketch13.addConstraint(Sketcher.Constraint("DistanceY", 4, 2, -1, 1, Q("6.968802 mm")))
sketch13.addConstraint(Sketcher.Constraint("DistanceX", 0, 3, -1, 1, Q("2.039921 mm")))
sketch13.addConstraint(Sketcher.Constraint("DistanceY", 0, 3, -1, 1, Q("6.922948 mm")))
sketch13.addConstraint(Sketcher.Constraint("DistanceX", 1, 2, -1, 1, Q("2.36304 mm")))
sketch13.addConstraint(Sketcher.Constraint("DistanceY", 2, 2, -1, 1, Q("7.181692 mm")))
sketch13.addConstraint(Sketcher.Constraint("DistanceY", 3, 2, 4, 2, Q("0.199482 mm")))
pad13 = body13.newObject("PartDesign::Pad", "Pad012")
pad13.Profile = sketch13
pad13.Length = 0.85
body14 = doc.addObject("PartDesign::Body", "Body013")

sketch14 = body14.newObject("Sketcher::SketchObject", "Sketch013")
sketch14.AttachmentSupport = (doc.getObject("XZ_Plane013"), [""])
sketch14.MapMode = "FlatFace"
sketch14.addGeometry(Part.ArcOfCircle(Part.Circle(App.Vector(-1.59, -5.79, 0), App.Vector(0, 0, 1), 0.24), math.radians(167), math.radians(235)), False)
sketch14.addGeometry(Part.ArcOfCircle(Part.Circle(App.Vector(-2.06, -5.97, 0), App.Vector(0, 0, 1), 0.33), math.radians(46), math.radians(126)), False)
sketch14.addGeometry(Part.ArcOfCircle(Part.Circle(App.Vector(-2.06, -5.97, 0), App.Vector(0, 0, 1), 0.33), math.radians(126), math.radians(188)), False)
sketch14.addGeometry(Part.ArcOfCircle(Part.Circle(App.Vector(-2.06, -5.97, 0), App.Vector(0, 0, 1), 0.33), math.radians(-172), math.radians(-4)), False)
sketch14.addGeometry(Part.ArcOfCircle(Part.Circle(App.Vector(-2.06, -5.97, 0), App.Vector(0, 0, 1), 0.24), math.radians(0), math.radians(137)), False)
sketch14.addGeometry(Part.ArcOfCircle(Part.Circle(App.Vector(-2.06, -5.97, 0), App.Vector(0, 0, 1), 0.24), math.radians(177), math.radians(360)), False)
sketch14.addGeometry(Part.ArcOfCircle(Part.Circle(App.Vector(-2.06, -5.97, 0), App.Vector(0, 0, 1), 0.24), math.radians(137), math.radians(177)), False)
sketch14.addConstraint(Sketcher.Constraint("Coincident", 0, 1, 1, 1))
sketch14.addConstraint(Sketcher.Constraint("Tangent", 1, 2, 2, 1))
sketch14.addConstraint(Sketcher.Constraint("Tangent", 2, 2, 3, 1))
sketch14.addConstraint(Sketcher.Constraint("Coincident", 3, 2, 0, 2))
sketch14.addConstraint(Sketcher.Constraint("Tangent", 4, 1, 5, 2))
sketch14.addConstraint(Sketcher.Constraint("Tangent", 5, 1, 6, 2))
sketch14.addConstraint(Sketcher.Constraint("Tangent", 6, 1, 4, 2))
sketch14.addConstraint(Sketcher.Constraint("Coincident", 3, 3, 1, 3))
sketch14.addConstraint(Sketcher.Constraint("Coincident", 4, 3, 1, 3))
sketch14.addConstraint(Sketcher.Constraint("Horizontal", 6, 3, 4, 1))
sketch14.addConstraint(Sketcher.Constraint("Radius", 4, Q("0.24 mm")))
sketch14.addConstraint(Sketcher.Constraint("Radius", 0, Q("0.245 mm")))
sketch14.addConstraint(Sketcher.Constraint("Radius", 1, Q("0.325 mm")))
sketch14.addConstraint(Sketcher.Constraint("DistanceY", 1, 3, 0, 3, Q("0.18 mm")))
sketch14.addConstraint(Sketcher.Constraint("DistanceX", 1, 3, 0, 1, Q("0.2249 mm")))
sketch14.addConstraint(Sketcher.Constraint("DistanceX", 0, 3, -1, 1, Q("1.593509 mm")))
sketch14.addConstraint(Sketcher.Constraint("DistanceY", 0, 1, -1, 1, Q("5.73849 mm")))
sketch14.addConstraint(Sketcher.Constraint("DistanceY", 1, 2, -1, 1, Q("5.708819 mm")))
sketch14.addConstraint(Sketcher.Constraint("DistanceX", 2, 2, -1, 1, Q("2.379228 mm")))
sketch14.addConstraint(Sketcher.Constraint("DistanceX", 5, 1, -1, 1, Q("2.29682 mm")))
sketch14.addConstraint(Sketcher.Constraint("DistanceX", 6, 1, -1, 1, Q("2.23221 mm")))
pad14 = body14.newObject("PartDesign::Pad", "Pad013")
pad14.Profile = sketch14
pad14.Length = 0.85

doc.recompute()
